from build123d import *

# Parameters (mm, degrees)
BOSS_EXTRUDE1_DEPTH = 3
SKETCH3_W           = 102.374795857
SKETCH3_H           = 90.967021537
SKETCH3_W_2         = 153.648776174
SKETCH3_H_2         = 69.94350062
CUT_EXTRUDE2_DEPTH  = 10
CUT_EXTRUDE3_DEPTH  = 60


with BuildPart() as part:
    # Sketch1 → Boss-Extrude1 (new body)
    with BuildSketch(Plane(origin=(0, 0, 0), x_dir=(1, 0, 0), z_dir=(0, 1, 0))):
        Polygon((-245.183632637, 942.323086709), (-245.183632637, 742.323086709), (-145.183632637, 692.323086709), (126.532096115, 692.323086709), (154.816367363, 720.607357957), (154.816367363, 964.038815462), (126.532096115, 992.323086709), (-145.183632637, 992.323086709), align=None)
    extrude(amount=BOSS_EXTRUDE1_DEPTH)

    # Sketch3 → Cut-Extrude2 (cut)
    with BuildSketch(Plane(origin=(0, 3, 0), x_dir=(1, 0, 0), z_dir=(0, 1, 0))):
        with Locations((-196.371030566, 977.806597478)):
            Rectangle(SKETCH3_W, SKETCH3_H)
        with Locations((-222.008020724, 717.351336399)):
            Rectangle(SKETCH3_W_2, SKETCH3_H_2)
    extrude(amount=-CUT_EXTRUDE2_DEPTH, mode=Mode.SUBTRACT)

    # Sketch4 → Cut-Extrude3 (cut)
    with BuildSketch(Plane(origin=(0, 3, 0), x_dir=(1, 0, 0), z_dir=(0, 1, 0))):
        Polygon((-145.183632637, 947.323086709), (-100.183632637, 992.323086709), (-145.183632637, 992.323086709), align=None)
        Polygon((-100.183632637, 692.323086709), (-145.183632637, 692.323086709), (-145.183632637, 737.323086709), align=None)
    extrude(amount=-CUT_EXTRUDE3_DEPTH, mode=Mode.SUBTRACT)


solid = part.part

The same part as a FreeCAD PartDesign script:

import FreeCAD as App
import Part
import Sketcher


def add_polygon(sketch, points):
    """Adds a closed chain of lines whose ends are joined by coincident constraints."""
    first, n = sketch.GeometryCount, len(points)
    for a, b in zip(points, points[1:] + points[:1]):
        sketch.addGeometry(Part.LineSegment(App.Vector(*a, 0), App.Vector(*b, 0)), False)
    for i in range(n):
        sketch.addConstraint(Sketcher.Constraint("Coincident", first + i, 2, first + (i + 1) % n, 1))

doc = App.newDocument("Part")
body = doc.addObject("PartDesign::Body", "Body")

# Sketch on XZ plane
sketch1 = doc.addObject("Sketcher::SketchObject", "Sketch")
body.addObject(sketch1)
sketch1.AttachmentSupport = (doc.XZ_Plane, [""])
sketch1.MapMode = "FlatFace"
add_polygon(sketch1, [(-245, -942), (-245, -742), (-145, -692), (127, -692), (155, -721), (155, -964), (127, -992), (-145, -992)])  # lines 0-7
sketch1.addConstraint(Sketcher.Constraint("Vertical", 0))
sketch1.addConstraint(Sketcher.Constraint("Horizontal", 2))
sketch1.addConstraint(Sketcher.Constraint("Vertical", 4))
sketch1.addConstraint(Sketcher.Constraint("Horizontal", 6))
sketch1.addConstraint(Sketcher.Constraint("Perpendicular", 3, 5))
sketch1.addConstraint(Sketcher.Constraint("Vertical", 2, 2, 5, 2))
sketch1.addConstraint(Sketcher.Constraint("Vertical", 1, 2, 6, 2))
sketch1.addConstraint(Sketcher.Constraint("Equal", 3, 5))
sketch1.addConstraint(Sketcher.Constraint("Equal", 1, 7))
sketch1.addConstraint(Sketcher.Constraint("DistanceY", 0, 1, 0, 2, 200.0))
sketch1.addConstraint(Sketcher.Constraint("Distance", 3, 40.0))
sketch1.addConstraint(Sketcher.Constraint("DistanceX", 0, 2, 1, 2, 100.0))
sketch1.addConstraint(Sketcher.Constraint("DistanceY", 0, 2, 1, 2, 50.0))
sketch1.addConstraint(Sketcher.Constraint("DistanceX", 1, 2, 3, 2, 300.0))
sketch1.addConstraint(Sketcher.Constraint("DistanceX", 0, 2, -1, 1, 245.183633))
sketch1.addConstraint(Sketcher.Constraint("DistanceY", 0, 2, -1, 1, 742.323087))
pad1 = doc.addObject("PartDesign::Pad", "Pad")
body.addObject(pad1)
pad1.Profile = sketch1
pad1.Length = 3
pad1.Reversed = True

# Sketch on XZ plane
sketch2 = doc.addObject("Sketcher::SketchObject", "Sketch001")
body.addObject(sketch2)
sketch2.AttachmentSupport = (doc.XZ_Plane, [""])
sketch2.MapMode = "FlatFace"
sketch2.AttachmentOffset = App.Placement(App.Vector(0, 0, -3), App.Rotation())
add_polygon(sketch2, [(-248, -1023), (-248, -932), (-145, -932), (-145, -1023)])  # lines 0-3
add_polygon(sketch2, [(-299, -752), (-299, -682), (-145, -682), (-145, -752)])  # lines 4-7
sketch2.addConstraint(Sketcher.Constraint("Vertical", 0))
sketch2.addConstraint(Sketcher.Constraint("Horizontal", 1))
sketch2.addConstraint(Sketcher.Constraint("Vertical", 2))
sketch2.addConstraint(Sketcher.Constraint("Horizontal", 3))
sketch2.addConstraint(Sketcher.Constraint("Vertical", 4))
sketch2.addConstraint(Sketcher.Constraint("Horizontal", 5))
sketch2.addConstraint(Sketcher.Constraint("Vertical", 6))
sketch2.addConstraint(Sketcher.Constraint("Horizontal", 7))
sketch2.addConstraint(Sketcher.Constraint("Vertical", 2, 2, 5, 2))
sketch2.addConstraint(Sketcher.Constraint("DistanceY", 1, 2, 6, 2, 180.0))
sketch2.addConstraint(Sketcher.Constraint("DistanceY", 4, 1, 4, 2, 69.943501))
sketch2.addConstraint(Sketcher.Constraint("DistanceY", 0, 1, 0, 2, 90.967022))
sketch2.addConstraint(Sketcher.Constraint("DistanceX", 1, 1, 1, 2, 102.374796))
sketch2.addConstraint(Sketcher.Constraint("DistanceX", 5, 1, 5, 2, 153.648776))
sketch2.addConstraint(Sketcher.Constraint("DistanceX", 0, 2, -1, 1, 247.558428))
sketch2.addConstraint(Sketcher.Constraint("DistanceY", 2, 2, -1, 1, 1023.290108))
pocket1 = doc.addObject("PartDesign::Pocket", "Pocket")
body.addObject(pocket1)
pocket1.Profile = sketch2
pocket1.Length = 10
pocket1.Reversed = True

# Sketch on XZ plane
sketch3 = doc.addObject("Sketcher::SketchObject", "Sketch002")
body.addObject(sketch3)
sketch3.AttachmentSupport = (doc.XZ_Plane, [""])
sketch3.MapMode = "FlatFace"
sketch3.AttachmentOffset = App.Placement(App.Vector(0, 0, -3), App.Rotation())
add_polygon(sketch3, [(-145, -947), (-100, -992), (-145, -992)])  # lines 0-2
add_polygon(sketch3, [(-145, -692), (-100, -692), (-145, -737)])  # lines 3-5
sketch3.addConstraint(Sketcher.Constraint("Horizontal", 1))
sketch3.addConstraint(Sketcher.Constraint("Vertical", 2))
sketch3.addConstraint(Sketcher.Constraint("Horizontal", 3))
sketch3.addConstraint(Sketcher.Constraint("Vertical", 5))
sketch3.addConstraint(Sketcher.Constraint("Perpendicular", 0, 4))
sketch3.addConstraint(Sketcher.Constraint("Vertical", 0, 2, 3, 2))
sketch3.addConstraint(Sketcher.Constraint("Vertical", 2, 2, 4, 2))
sketch3.addConstraint(Sketcher.Constraint("Equal", 3, 2))
sketch3.addConstraint(Sketcher.Constraint("DistanceX", 1, 2, 1, 1, 45.0))
sketch3.addConstraint(Sketcher.Constraint("DistanceY", 2, 2, 3, 2, 255.0))
sketch3.addConstraint(Sketcher.Constraint("DistanceX", 0, 2, -1, 1, 100.183633))
sketch3.addConstraint(Sketcher.Constraint("DistanceY", 0, 2, -1, 1, 992.323087))
pocket2 = doc.addObject("PartDesign::Pocket", "Pocket001")
body.addObject(pocket2)
pocket2.Profile = sketch3
pocket2.Length = 60
pocket2.Reversed = True

doc.recompute()
